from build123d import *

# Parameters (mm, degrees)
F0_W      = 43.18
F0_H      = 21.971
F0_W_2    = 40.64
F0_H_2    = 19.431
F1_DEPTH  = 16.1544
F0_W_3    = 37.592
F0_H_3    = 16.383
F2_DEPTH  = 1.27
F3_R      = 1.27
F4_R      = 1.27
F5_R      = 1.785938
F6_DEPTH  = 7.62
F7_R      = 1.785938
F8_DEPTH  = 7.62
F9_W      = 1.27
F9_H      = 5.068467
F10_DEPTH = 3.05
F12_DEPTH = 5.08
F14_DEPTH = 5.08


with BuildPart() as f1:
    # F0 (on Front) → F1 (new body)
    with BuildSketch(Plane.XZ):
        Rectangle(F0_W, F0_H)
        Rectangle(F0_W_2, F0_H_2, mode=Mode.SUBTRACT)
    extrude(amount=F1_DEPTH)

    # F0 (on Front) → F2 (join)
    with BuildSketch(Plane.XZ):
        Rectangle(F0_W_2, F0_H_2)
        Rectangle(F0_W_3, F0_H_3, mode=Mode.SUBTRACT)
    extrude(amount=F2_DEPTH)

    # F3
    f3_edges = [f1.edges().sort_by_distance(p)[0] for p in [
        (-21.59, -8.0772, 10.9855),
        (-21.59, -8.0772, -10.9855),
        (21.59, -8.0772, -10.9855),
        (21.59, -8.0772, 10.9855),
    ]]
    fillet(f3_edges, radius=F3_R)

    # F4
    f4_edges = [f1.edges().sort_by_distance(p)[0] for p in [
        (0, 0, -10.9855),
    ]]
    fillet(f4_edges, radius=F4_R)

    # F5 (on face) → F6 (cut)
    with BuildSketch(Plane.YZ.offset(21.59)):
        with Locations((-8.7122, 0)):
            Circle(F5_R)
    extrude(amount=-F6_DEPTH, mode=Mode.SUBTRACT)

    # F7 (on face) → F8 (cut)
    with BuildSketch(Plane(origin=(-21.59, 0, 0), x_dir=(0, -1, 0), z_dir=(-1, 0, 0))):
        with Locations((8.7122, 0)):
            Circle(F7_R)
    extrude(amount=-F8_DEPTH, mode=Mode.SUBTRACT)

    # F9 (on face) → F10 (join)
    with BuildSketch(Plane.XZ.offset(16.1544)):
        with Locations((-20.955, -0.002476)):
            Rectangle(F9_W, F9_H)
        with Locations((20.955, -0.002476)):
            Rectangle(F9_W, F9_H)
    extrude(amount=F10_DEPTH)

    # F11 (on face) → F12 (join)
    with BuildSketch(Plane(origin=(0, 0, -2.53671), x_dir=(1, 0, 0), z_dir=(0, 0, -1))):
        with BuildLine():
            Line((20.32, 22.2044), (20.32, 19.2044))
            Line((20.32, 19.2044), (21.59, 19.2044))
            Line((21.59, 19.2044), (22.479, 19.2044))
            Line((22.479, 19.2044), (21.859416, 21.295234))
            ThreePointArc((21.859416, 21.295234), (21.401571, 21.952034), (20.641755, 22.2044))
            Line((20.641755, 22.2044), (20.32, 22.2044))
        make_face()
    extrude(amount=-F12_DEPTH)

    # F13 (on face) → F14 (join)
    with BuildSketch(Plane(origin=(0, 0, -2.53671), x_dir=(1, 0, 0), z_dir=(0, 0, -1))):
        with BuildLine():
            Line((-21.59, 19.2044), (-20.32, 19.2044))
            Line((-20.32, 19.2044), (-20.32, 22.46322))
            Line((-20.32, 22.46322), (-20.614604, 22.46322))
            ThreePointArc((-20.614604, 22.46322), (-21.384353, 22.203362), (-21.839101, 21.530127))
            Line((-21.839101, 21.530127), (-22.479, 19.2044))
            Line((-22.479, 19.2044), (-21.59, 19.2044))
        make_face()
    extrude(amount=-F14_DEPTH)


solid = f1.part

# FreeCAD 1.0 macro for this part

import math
import FreeCAD as App
import Part
import Sketcher
from FreeCAD import Vector
Q = App.Units.Quantity


def edges_at(feature, points):
    """Names of the edges that pass closest to the given points."""
    edges = feature.Shape.Edges
    near = lambda p: min(range(len(edges)), key=lambda i: edges[i].distToShape(Part.Vertex(*p))[0])
    return sorted({f"Edge{near(p) + 1}" for p in points})


def add_polygon(sketch, points):
    """Adds a closed chain of lines whose ends are joined by coincident constraints."""
    first, n = sketch.GeometryCount, len(points)
    for a, b in zip(points, points[1:] + points[:1]):
        sketch.addGeometry(Part.LineSegment(App.Vector(*a, 0), App.Vector(*b, 0)), False)
    for i in range(n):
        sketch.addConstraint(Sketcher.Constraint("Coincident", first + i, 2, first + (i + 1) % n, 1))

doc = App.newDocument("Part")
body = doc.addObject("PartDesign::Body", "Body")

# Sketch on XZ plane
sketch1 = body.newObject("Sketcher::SketchObject", "Sketch")
sketch1.AttachmentSupport = (doc.getObject("XZ_Plane"), [""])
sketch1.MapMode = "FlatFace"
add_polygon(sketch1, [(-22, 11), (-22, -11), (22, -11), (22, 11)])  # lines 0-3
add_polygon(sketch1, [(20, -10), (-20, -10), (-20, 10), (20, 10)])  # lines 4-7
sketch1.addConstraint([
    Sketcher.Constraint("Vertical", 0),
    Sketcher.Constraint("Horizontal", 1),
    Sketcher.Constraint("Vertical", 2),
    Sketcher.Constraint("Horizontal", 3),
    Sketcher.Constraint("Horizontal", 4),
    Sketcher.Constraint("Vertical", 5),
    Sketcher.Constraint("Horizontal", 6),
    Sketcher.Constraint("Vertical", 7),
    Sketcher.Constraint("Symmetric", 0, 2, 2, 2, -1, 1),
    Sketcher.Constraint("Symmetric", 4, 2, 6, 2, -1, 1),
    Sketcher.Constraint("DistanceX", 1, 1, 1, 2, Q("1.7 in")),
    Sketcher.Constraint("DistanceX", 4, 2, 4, 1, Q("1.6 in")),
    Sketcher.Constraint("DistanceY", 0, 2, 0, 1, Q("0.865 in")),
    Sketcher.Constraint("DistanceY", 5, 1, 5, 2, Q("0.765 in")),
])
pad1 = body.newObject("PartDesign::Pad", "Pad")
pad1.Profile = sketch1
pad1.Length = Q("0.636 in")

# Sketch on XZ plane
sketch2 = body.newObject("Sketcher::SketchObject", "Sketch001")
sketch2.AttachmentSupport = (doc.getObject("XZ_Plane"), [""])
sketch2.MapMode = "FlatFace"
add_polygon(sketch2, [(-20, 10), (-20, -10), (20, -10), (20, 10)])  # lines 0-3
add_polygon(sketch2, [(19, -8), (-19, -8), (-19, 8), (19, 8)])  # lines 4-7
sketch2.addConstraint([
    Sketcher.Constraint("Vertical", 0),
    Sketcher.Constraint("Horizontal", 1),
    Sketcher.Constraint("Vertical", 2),
    Sketcher.Constraint("Horizontal", 3),
    Sketcher.Constraint("Horizontal", 4),
    Sketcher.Constraint("Vertical", 5),
    Sketcher.Constraint("Horizontal", 6),
    Sketcher.Constraint("Vertical", 7),
    Sketcher.Constraint("Symmetric", 0, 2, 2, 2, -1, 1),
    Sketcher.Constraint("Symmetric", 4, 2, 6, 2, -1, 1),
    Sketcher.Constraint("DistanceX", 1, 1, 1, 2, Q("1.6 in")),
    Sketcher.Constraint("DistanceX", 4, 2, 4, 1, Q("1.48 in")),
    Sketcher.Constraint("DistanceY", 0, 2, 0, 1, Q("0.765 in")),
    Sketcher.Constraint("DistanceY", 5, 1, 5, 2, Q("0.645 in")),
])
pad2 = body.newObject("PartDesign::Pad", "Pad001")
pad2.Profile = sketch2
pad2.Length = Q("0.05 in")
doc.recompute()

fillet = body.newObject("PartDesign::Fillet", "Fillet")
fillet.Base = (pad2, edges_at(pad2, [
    (-21.59, -8.077, 10.986),
    (-21.59, -8.077, -10.986),
    (21.59, -8.077, -10.986),
    (21.59, -8.077, 10.986),
]))
fillet.Radius = Q("0.05 in")
doc.recompute()

fillet2 = body.newObject("PartDesign::Fillet", "Fillet001")
fillet2.Base = (fillet, edges_at(fillet, [(0, 0, -10.986)]))
fillet2.Radius = Q("0.05 in")

# Sketch on YZ plane
sketch3 = body.newObject("Sketcher::SketchObject", "Sketch002")
sketch3.AttachmentSupport = (doc.getObject("YZ_Plane"), [""])
sketch3.MapMode = "FlatFace"
sketch3.AttachmentOffset = App.Placement(Vector(0, 0, 0.85 * 25.4), App.Rotation())
sketch3.addGeometry(Part.Circle(Vector(-8.7, 0, 0), Vector(0, 0, 1), 1.8), False)
sketch3.addConstraint([
    Sketcher.Constraint("PointOnObject", 0, 3, -1),
    Sketcher.Constraint("Diameter", 0, Q("0.140625 in")),
    Sketcher.Constraint("DistanceX", 0, 3, -1, 1, Q("0.343 in")),
])
pocket1 = body.newObject("PartDesign::Pocket", "Pocket")
pocket1.Profile = sketch3
pocket1.Length = Q("0.3 in")

# Sketch on YZ plane
sketch4 = body.newObject("Sketcher::SketchObject", "Sketch003")
sketch4.AttachmentSupport = (doc.getObject("YZ_Plane"), [""])
sketch4.MapMode = "FlatFace"
sketch4.AttachmentOffset = App.Placement(Vector(0, 0, -0.85 * 25.4), App.Rotation())
sketch4.addGeometry(Part.Circle(Vector(-8.7, 0, 0), Vector(0, 0, 1), 1.8), False)
sketch4.addConstraint([
    Sketcher.Constraint("PointOnObject", 0, 3, -1),
    Sketcher.Constraint("Diameter", 0, Q("0.140625 in")),
    Sketcher.Constraint("DistanceX", 0, 3, -1, 1, Q("0.343 in")),
])
pocket2 = body.newObject("PartDesign::Pocket", "Pocket001")
pocket2.Profile = sketch4
pocket2.Length = Q("0.3 in")
pocket2.Reversed = True

# Sketch on XZ plane
sketch5 = body.newObject("Sketcher::SketchObject", "Sketch004")
sketch5.AttachmentSupport = (doc.getObject("XZ_Plane"), [""])
sketch5.MapMode = "FlatFace"
sketch5.AttachmentOffset = App.Placement(Vector(0, 0, 0.636 * 25.4), App.Rotation())
add_polygon(sketch5, [(-21.6, 2.5), (-21.6, -2.5), (-20.3, -2.5), (-20.3, 2.5)])  # lines 0-3
add_polygon(sketch5, [(20.3, 2.5), (20.3, -2.5), (21.6, -2.5), (21.6, 2.5)])  # lines 4-7
sketch5.addConstraint([
    Sketcher.Constraint("Vertical", 0),
    Sketcher.Constraint("Horizontal", 1),
    Sketcher.Constraint("Vertical", 2),
    Sketcher.Constraint("Horizontal", 3),
    Sketcher.Constraint("Vertical", 4),
    Sketcher.Constraint("Horizontal", 5),
    Sketcher.Constraint("Vertical", 6),
    Sketcher.Constraint("Horizontal", 7),
    Sketcher.Constraint("Symmetric", 1, 2, 4, 2, -2),
    Sketcher.Constraint("Symmetric", 3, 2, 6, 2, -2),
    Sketcher.Constraint("DistanceX", 1, 1, 1, 2, Q("0.05 in")),
    Sketcher.Constraint("DistanceX", 1, 2, -1, 1, Q("0.8 in")),
    Sketcher.Constraint("DistanceY", 0, 2, 0, 1, Q("5.068467 mm")),
    Sketcher.Constraint("DistanceY", 0, 2, -1, 1, Q("2.53671 mm")),
])
pad3 = body.newObject("PartDesign::Pad", "Pad002")
pad3.Profile = sketch5
pad3.Length = 3.05

# Sketch on XY plane
sketch6 = body.newObject("Sketcher::SketchObject", "Sketch005")
sketch6.AttachmentSupport = (doc.getObject("XY_Plane"), [""])
sketch6.MapMode = "FlatFace"
sketch6.AttachmentOffset = App.Placement(Vector(0, 0, -2.53671), App.Rotation())
sketch6.addGeometry([
    Part.LineSegment(Vector(20.32, -22.2, 0), Vector(20.32, -19.2, 0)),  # 0
    Part.LineSegment(Vector(20.32, -19.2, 0), Vector(22.48, -19.2, 0)),  # 1
    Part.LineSegment(Vector(22.48, -19.2, 0), Vector(21.86, -21.3, 0)),  # 2
    Part.ArcOfCircle(Part.Circle(Vector(20.64, -20.93, 0), Vector(0, 0, 1), 1.27), math.radians(-90), math.radians(-17)),  # 3
    Part.LineSegment(Vector(20.64, -22.2, 0), Vector(20.32, -22.2, 0)),  # 4
], False)
sketch6.addConstraint([
    Sketcher.Constraint("Coincident", 0, 2, 1, 1),
    Sketcher.Constraint("Coincident", 1, 2, 2, 1),
    Sketcher.Constraint("Tangent", 2, 2, 3, 2),
    Sketcher.Constraint("Tangent", 3, 1, 4, 1),
    Sketcher.Constraint("Coincident", 4, 2, 0, 1),
    Sketcher.Constraint("Vertical", 0),
    Sketcher.Constraint("Horizontal", 1),
    Sketcher.Constraint("Horizontal", 4),
    Sketcher.Constraint("Radius", 3, Q("0.05 in")),
    Sketcher.Constraint("DistanceX", -1, 1, 0, 2, Q("0.8 in")),
    Sketcher.Constraint("DistanceX", 1, 1, 1, 2, Q("0.085 in")),
    Sketcher.Constraint("DistanceY", 0, 1, 0, 2, Q("3 mm")),
    Sketcher.Constraint("DistanceY", 3, 3, -1, 1, Q("20.934399 mm")),
    Sketcher.Constraint("DistanceX", 4, 2, 4, 1, Q("0.321755 mm")),
])
pad4 = body.newObject("PartDesign::Pad", "Pad003")
pad4.Profile = sketch6
pad4.Length = Q("0.2 in")

# Sketch on XY plane
sketch7 = body.newObject("Sketcher::SketchObject", "Sketch006")
sketch7.AttachmentSupport = (doc.getObject("XY_Plane"), [""])
sketch7.MapMode = "FlatFace"
sketch7.AttachmentOffset = App.Placement(Vector(0, 0, -2.53671), App.Rotation())
sketch7.addGeometry([
    Part.LineSegment(Vector(-20.32, -19.2, 0), Vector(-20.32, -22.46, 0)),  # 0
    Part.LineSegment(Vector(-20.32, -22.46, 0), Vector(-20.61, -22.46, 0)),  # 1
    Part.ArcOfCircle(Part.Circle(Vector(-20.61, -21.19, 0), Vector(0, 0, 1), 1.27), math.radians(-165), math.radians(-90)),  # 2
    Part.LineSegment(Vector(-21.84, -21.53, 0), Vector(-22.48, -19.2, 0)),  # 3
    Part.LineSegment(Vector(-22.48, -19.2, 0), Vector(-20.32, -19.2, 0)),  # 4
], False)
sketch7.addConstraint([
    Sketcher.Constraint("Coincident", 0, 2, 1, 1),
    Sketcher.Constraint("Tangent", 1, 2, 2, 2),
    Sketcher.Constraint("Tangent", 2, 1, 3, 1),
    Sketcher.Constraint("Coincident", 3, 2, 4, 1),
    Sketcher.Constraint("Coincident", 4, 2, 0, 1),
    Sketcher.Constraint("Vertical", 0),
    Sketcher.Constraint("Horizontal", 1),
    Sketcher.Constraint("Horizontal", 4),
    Sketcher.Constraint("Radius", 2, Q("0.0499999 in")),
    Sketcher.Constraint("DistanceX", 0, 2, -1, 1, Q("0.8 in")),
    Sketcher.Constraint("DistanceX", 4, 1, 4, 2, Q("0.085 in")),
    Sketcher.Constraint("DistanceY", 0, 2, 0, 1, Q("0.1283 in")),
    Sketcher.Constraint("DistanceX", 2, 1, -1, 1, Q("21.839101 mm")),
    Sketcher.Constraint("DistanceY", 3, 2, -1, 1, Q("19.2044 mm")),
])
pad5 = body.newObject("PartDesign::Pad", "Pad004")
pad5.Profile = sketch7
pad5.Length = Q("0.2 in")

doc.recompute()
